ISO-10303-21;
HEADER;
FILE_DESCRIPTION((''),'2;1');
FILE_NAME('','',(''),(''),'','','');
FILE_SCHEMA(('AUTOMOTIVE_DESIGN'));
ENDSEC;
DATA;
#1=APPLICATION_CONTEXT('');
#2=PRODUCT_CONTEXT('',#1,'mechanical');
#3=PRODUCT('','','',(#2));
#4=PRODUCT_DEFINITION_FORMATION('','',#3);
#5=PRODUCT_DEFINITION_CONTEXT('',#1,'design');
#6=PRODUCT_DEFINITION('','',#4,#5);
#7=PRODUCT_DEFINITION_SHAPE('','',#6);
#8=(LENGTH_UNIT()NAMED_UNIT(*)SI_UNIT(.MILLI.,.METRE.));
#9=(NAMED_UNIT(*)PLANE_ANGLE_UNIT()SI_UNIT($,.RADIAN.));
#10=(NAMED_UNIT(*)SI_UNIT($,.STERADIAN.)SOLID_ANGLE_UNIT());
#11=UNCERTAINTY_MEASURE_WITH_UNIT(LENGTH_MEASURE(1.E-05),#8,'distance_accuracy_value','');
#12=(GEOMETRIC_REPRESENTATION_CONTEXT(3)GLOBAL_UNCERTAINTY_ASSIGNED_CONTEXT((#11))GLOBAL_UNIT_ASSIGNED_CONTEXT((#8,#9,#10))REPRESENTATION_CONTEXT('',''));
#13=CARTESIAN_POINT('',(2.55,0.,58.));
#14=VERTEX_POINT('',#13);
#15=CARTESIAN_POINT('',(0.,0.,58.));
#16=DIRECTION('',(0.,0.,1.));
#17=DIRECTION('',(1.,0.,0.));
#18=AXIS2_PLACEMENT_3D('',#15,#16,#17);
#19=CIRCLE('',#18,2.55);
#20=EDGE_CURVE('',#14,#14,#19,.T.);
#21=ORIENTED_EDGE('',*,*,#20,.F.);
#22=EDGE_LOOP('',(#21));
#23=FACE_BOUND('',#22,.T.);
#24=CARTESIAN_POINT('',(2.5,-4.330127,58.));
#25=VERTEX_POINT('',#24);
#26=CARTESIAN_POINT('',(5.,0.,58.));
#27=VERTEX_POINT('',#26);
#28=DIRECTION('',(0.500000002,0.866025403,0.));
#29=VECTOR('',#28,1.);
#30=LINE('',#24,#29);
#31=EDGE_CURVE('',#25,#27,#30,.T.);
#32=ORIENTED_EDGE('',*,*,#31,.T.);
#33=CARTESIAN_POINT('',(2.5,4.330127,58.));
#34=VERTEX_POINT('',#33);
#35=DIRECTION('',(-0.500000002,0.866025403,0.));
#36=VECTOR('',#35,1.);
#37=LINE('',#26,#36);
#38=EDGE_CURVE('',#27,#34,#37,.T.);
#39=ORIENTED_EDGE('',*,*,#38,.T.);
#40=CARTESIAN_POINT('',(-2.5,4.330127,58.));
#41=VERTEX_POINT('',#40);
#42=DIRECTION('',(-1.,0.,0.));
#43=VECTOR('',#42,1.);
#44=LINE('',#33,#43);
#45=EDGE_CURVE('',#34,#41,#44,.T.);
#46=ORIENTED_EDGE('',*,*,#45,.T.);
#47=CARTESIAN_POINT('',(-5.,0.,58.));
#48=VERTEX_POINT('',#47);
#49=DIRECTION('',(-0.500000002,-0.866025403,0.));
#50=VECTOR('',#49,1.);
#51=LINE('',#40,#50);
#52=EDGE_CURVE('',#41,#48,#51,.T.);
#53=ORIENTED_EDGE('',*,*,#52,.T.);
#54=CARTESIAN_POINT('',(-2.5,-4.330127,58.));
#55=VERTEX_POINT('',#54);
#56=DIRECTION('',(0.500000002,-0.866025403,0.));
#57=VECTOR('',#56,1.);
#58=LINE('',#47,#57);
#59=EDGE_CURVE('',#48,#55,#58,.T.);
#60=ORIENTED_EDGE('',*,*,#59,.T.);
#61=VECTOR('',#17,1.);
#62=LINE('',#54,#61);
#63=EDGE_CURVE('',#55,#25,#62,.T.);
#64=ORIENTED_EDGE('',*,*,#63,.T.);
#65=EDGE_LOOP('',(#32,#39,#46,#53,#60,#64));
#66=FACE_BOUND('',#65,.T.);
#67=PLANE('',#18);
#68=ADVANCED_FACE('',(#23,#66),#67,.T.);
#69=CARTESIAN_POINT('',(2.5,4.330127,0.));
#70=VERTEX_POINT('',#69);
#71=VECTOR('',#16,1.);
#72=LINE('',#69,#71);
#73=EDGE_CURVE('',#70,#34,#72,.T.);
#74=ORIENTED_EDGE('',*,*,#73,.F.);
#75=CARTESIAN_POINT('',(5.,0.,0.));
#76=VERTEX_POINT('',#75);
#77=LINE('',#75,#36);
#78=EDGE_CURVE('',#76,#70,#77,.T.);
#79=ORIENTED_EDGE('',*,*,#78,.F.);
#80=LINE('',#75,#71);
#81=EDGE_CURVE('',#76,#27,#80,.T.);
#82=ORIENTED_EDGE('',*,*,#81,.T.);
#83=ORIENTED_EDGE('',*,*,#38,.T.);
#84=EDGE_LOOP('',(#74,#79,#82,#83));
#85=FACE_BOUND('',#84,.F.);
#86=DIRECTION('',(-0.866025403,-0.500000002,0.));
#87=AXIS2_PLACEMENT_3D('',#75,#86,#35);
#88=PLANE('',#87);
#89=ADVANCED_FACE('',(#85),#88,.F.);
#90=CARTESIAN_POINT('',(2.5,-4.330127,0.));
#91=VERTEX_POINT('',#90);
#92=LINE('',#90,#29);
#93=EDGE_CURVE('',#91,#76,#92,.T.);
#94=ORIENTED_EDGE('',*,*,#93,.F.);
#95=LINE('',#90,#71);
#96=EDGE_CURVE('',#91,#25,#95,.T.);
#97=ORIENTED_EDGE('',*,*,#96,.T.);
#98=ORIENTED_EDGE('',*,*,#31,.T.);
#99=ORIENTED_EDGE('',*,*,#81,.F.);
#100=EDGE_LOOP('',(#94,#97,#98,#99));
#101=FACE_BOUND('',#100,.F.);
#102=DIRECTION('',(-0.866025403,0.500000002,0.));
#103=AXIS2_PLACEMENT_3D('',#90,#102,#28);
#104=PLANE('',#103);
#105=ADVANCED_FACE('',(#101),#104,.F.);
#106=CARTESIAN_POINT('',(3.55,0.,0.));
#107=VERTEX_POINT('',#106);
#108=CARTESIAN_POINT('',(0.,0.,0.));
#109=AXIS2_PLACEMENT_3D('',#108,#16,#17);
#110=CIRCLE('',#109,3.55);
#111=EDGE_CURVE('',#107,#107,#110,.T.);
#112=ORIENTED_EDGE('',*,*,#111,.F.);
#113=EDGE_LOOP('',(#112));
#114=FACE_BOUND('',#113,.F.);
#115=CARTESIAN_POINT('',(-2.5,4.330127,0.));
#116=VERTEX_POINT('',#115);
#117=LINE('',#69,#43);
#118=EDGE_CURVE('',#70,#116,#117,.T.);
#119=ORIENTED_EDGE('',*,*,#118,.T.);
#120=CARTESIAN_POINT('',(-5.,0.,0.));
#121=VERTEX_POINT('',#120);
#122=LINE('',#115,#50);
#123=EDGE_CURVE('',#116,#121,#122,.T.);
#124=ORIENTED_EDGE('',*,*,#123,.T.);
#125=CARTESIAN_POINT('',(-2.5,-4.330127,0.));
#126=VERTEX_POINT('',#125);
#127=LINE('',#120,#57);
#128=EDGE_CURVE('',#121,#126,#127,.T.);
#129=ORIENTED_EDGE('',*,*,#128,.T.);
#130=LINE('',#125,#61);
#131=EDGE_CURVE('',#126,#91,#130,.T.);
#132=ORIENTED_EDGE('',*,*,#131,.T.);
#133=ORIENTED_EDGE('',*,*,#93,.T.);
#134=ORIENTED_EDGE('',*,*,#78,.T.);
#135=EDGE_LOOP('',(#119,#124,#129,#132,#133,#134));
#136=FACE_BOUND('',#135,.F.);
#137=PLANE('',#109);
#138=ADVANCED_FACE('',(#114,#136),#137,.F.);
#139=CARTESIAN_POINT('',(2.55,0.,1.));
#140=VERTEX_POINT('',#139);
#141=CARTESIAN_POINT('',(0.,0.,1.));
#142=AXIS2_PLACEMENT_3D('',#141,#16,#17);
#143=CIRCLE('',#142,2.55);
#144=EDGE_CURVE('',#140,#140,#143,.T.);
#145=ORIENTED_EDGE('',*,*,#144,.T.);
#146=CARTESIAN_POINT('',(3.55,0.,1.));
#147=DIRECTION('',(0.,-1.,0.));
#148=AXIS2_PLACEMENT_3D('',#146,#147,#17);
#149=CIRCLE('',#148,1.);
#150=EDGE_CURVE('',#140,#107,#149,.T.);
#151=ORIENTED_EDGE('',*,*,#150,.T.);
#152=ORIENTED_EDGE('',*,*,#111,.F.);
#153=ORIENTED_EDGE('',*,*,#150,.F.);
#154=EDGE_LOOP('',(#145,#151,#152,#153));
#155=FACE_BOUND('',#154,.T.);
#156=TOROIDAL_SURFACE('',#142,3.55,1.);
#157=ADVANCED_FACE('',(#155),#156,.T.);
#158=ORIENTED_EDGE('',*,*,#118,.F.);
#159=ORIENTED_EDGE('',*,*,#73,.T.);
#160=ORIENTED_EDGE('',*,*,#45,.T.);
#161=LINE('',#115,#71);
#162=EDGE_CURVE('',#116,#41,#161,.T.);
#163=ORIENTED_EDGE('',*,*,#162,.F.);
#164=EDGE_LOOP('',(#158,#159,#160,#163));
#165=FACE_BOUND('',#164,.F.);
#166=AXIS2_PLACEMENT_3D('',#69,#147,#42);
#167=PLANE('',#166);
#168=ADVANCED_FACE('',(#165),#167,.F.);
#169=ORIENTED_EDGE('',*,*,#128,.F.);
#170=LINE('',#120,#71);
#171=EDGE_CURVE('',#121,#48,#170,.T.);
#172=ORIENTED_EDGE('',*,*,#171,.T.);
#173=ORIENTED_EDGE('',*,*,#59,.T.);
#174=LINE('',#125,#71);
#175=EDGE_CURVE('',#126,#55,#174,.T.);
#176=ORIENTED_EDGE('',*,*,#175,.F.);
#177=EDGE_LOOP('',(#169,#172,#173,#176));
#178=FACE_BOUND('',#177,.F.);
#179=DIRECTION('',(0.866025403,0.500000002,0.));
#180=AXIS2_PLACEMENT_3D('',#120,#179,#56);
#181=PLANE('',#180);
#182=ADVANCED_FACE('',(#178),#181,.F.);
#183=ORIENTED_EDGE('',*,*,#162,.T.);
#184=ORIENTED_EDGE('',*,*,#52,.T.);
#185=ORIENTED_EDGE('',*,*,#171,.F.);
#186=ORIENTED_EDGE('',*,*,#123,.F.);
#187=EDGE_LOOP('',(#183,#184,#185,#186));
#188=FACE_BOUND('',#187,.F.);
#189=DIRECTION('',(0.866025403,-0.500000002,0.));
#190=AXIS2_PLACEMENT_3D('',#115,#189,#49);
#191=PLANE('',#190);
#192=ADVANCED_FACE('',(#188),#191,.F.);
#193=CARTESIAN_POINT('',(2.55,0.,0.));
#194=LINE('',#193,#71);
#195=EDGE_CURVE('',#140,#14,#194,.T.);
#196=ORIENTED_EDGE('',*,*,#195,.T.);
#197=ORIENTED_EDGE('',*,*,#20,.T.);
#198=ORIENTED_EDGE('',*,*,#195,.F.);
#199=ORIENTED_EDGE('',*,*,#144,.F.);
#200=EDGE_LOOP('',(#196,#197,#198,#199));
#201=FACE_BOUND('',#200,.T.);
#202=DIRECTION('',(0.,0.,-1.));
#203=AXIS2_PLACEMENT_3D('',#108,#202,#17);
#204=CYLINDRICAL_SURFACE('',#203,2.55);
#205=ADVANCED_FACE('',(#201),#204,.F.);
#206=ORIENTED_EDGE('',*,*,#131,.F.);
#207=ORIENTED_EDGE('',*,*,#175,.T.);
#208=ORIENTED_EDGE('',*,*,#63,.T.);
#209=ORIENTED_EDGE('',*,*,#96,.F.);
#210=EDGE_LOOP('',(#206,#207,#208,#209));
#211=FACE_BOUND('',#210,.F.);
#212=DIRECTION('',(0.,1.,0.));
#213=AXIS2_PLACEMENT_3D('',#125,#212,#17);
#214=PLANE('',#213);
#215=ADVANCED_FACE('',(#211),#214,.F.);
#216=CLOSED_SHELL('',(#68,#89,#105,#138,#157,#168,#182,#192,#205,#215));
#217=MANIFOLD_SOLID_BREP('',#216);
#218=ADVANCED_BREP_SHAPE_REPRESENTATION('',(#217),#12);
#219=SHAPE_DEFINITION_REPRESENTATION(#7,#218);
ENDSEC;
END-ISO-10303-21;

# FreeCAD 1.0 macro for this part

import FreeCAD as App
import Part
import Sketcher
Q = App.Units.Quantity


def edges_at(feature, points):
    """Names of the edges that pass closest to the given points."""
    edges = feature.Shape.Edges
    near = lambda p: min(range(len(edges)), key=lambda i: edges[i].distToShape(Part.Vertex(*p))[0])
    return sorted({f"Edge{near(p) + 1}" for p in points})

doc = App.newDocument("Part")
body = doc.addObject("PartDesign::Body", "Body")

# Sketch on XY plane
sketch1 = body.newObject("Sketcher::SketchObject", "Sketch")
sketch1.AttachmentSupport = (doc.getObject("XY_Plane"), [""])
sketch1.MapMode = "FlatFace"
sketch1.addGeometry([
    Part.LineSegment(App.Vector(-5, 0, 0), App.Vector(-2.5, -4.3, 0)),  # 0
    Part.LineSegment(App.Vector(-2.5, -4.3, 0), App.Vector(2.5, -4.3, 0)),  # 1
    Part.LineSegment(App.Vector(2.5, -4.3, 0), App.Vector(5, 0, 0)),  # 2
    Part.LineSegment(App.Vector(5, 0, 0), App.Vector(2.5, 4.3, 0)),  # 3
    Part.LineSegment(App.Vector(2.5, 4.3, 0), App.Vector(-2.5, 4.3, 0)),  # 4
    Part.LineSegment(App.Vector(-2.5, 4.3, 0), App.Vector(-5, 0, 0)),  # 5
    Part.Circle(App.Vector(0, 0, 0), App.Vector(0, 0, 1), 2.5),  # 6
], False)
sketch1.addConstraint([
    Sketcher.Constraint("Coincident", 0, 2, 1, 1),
    Sketcher.Constraint("Coincident", 1, 2, 2, 1),
    Sketcher.Constraint("Coincident", 2, 2, 3, 1),
    Sketcher.Constraint("Coincident", 3, 2, 4, 1),
    Sketcher.Constraint("Coincident", 4, 2, 5, 1),
    Sketcher.Constraint("Coincident", 5, 2, 0, 1),
    Sketcher.Constraint("Horizontal", 1),
    Sketcher.Constraint("Horizontal", 4),
    Sketcher.Constraint("Coincident", 6, 3, -1, 1),
    Sketcher.Constraint("Symmetric", 0, 2, 3, 2, -1, 1),
    Sketcher.Constraint("Symmetric", 2, 2, 5, 2, -1, 1),
    Sketcher.Constraint("PointOnObject", 2, 2, -1),
    Sketcher.Constraint("Parallel", 2, 5),
    Sketcher.Constraint("Vertical", 1, 2, 3, 2),
    Sketcher.Constraint("Diameter", 6, 5.1),
    Sketcher.Constraint("DistanceX", 1, 1, 1, 2, 5.0),
    Sketcher.Constraint("Angle", 0, Q("-60 deg")),
    Sketcher.Constraint("Distance", 0, 5.0),
])
pad1 = body.newObject("PartDesign::Pad", "Pad")
pad1.Profile = sketch1
pad1.Length = 58
doc.recompute()

fillet = body.newObject("PartDesign::Fillet", "Fillet")
fillet.Base = (pad1, edges_at(pad1, [(-2.55, 0, 0)]))
fillet.Radius = 1

doc.recompute()
